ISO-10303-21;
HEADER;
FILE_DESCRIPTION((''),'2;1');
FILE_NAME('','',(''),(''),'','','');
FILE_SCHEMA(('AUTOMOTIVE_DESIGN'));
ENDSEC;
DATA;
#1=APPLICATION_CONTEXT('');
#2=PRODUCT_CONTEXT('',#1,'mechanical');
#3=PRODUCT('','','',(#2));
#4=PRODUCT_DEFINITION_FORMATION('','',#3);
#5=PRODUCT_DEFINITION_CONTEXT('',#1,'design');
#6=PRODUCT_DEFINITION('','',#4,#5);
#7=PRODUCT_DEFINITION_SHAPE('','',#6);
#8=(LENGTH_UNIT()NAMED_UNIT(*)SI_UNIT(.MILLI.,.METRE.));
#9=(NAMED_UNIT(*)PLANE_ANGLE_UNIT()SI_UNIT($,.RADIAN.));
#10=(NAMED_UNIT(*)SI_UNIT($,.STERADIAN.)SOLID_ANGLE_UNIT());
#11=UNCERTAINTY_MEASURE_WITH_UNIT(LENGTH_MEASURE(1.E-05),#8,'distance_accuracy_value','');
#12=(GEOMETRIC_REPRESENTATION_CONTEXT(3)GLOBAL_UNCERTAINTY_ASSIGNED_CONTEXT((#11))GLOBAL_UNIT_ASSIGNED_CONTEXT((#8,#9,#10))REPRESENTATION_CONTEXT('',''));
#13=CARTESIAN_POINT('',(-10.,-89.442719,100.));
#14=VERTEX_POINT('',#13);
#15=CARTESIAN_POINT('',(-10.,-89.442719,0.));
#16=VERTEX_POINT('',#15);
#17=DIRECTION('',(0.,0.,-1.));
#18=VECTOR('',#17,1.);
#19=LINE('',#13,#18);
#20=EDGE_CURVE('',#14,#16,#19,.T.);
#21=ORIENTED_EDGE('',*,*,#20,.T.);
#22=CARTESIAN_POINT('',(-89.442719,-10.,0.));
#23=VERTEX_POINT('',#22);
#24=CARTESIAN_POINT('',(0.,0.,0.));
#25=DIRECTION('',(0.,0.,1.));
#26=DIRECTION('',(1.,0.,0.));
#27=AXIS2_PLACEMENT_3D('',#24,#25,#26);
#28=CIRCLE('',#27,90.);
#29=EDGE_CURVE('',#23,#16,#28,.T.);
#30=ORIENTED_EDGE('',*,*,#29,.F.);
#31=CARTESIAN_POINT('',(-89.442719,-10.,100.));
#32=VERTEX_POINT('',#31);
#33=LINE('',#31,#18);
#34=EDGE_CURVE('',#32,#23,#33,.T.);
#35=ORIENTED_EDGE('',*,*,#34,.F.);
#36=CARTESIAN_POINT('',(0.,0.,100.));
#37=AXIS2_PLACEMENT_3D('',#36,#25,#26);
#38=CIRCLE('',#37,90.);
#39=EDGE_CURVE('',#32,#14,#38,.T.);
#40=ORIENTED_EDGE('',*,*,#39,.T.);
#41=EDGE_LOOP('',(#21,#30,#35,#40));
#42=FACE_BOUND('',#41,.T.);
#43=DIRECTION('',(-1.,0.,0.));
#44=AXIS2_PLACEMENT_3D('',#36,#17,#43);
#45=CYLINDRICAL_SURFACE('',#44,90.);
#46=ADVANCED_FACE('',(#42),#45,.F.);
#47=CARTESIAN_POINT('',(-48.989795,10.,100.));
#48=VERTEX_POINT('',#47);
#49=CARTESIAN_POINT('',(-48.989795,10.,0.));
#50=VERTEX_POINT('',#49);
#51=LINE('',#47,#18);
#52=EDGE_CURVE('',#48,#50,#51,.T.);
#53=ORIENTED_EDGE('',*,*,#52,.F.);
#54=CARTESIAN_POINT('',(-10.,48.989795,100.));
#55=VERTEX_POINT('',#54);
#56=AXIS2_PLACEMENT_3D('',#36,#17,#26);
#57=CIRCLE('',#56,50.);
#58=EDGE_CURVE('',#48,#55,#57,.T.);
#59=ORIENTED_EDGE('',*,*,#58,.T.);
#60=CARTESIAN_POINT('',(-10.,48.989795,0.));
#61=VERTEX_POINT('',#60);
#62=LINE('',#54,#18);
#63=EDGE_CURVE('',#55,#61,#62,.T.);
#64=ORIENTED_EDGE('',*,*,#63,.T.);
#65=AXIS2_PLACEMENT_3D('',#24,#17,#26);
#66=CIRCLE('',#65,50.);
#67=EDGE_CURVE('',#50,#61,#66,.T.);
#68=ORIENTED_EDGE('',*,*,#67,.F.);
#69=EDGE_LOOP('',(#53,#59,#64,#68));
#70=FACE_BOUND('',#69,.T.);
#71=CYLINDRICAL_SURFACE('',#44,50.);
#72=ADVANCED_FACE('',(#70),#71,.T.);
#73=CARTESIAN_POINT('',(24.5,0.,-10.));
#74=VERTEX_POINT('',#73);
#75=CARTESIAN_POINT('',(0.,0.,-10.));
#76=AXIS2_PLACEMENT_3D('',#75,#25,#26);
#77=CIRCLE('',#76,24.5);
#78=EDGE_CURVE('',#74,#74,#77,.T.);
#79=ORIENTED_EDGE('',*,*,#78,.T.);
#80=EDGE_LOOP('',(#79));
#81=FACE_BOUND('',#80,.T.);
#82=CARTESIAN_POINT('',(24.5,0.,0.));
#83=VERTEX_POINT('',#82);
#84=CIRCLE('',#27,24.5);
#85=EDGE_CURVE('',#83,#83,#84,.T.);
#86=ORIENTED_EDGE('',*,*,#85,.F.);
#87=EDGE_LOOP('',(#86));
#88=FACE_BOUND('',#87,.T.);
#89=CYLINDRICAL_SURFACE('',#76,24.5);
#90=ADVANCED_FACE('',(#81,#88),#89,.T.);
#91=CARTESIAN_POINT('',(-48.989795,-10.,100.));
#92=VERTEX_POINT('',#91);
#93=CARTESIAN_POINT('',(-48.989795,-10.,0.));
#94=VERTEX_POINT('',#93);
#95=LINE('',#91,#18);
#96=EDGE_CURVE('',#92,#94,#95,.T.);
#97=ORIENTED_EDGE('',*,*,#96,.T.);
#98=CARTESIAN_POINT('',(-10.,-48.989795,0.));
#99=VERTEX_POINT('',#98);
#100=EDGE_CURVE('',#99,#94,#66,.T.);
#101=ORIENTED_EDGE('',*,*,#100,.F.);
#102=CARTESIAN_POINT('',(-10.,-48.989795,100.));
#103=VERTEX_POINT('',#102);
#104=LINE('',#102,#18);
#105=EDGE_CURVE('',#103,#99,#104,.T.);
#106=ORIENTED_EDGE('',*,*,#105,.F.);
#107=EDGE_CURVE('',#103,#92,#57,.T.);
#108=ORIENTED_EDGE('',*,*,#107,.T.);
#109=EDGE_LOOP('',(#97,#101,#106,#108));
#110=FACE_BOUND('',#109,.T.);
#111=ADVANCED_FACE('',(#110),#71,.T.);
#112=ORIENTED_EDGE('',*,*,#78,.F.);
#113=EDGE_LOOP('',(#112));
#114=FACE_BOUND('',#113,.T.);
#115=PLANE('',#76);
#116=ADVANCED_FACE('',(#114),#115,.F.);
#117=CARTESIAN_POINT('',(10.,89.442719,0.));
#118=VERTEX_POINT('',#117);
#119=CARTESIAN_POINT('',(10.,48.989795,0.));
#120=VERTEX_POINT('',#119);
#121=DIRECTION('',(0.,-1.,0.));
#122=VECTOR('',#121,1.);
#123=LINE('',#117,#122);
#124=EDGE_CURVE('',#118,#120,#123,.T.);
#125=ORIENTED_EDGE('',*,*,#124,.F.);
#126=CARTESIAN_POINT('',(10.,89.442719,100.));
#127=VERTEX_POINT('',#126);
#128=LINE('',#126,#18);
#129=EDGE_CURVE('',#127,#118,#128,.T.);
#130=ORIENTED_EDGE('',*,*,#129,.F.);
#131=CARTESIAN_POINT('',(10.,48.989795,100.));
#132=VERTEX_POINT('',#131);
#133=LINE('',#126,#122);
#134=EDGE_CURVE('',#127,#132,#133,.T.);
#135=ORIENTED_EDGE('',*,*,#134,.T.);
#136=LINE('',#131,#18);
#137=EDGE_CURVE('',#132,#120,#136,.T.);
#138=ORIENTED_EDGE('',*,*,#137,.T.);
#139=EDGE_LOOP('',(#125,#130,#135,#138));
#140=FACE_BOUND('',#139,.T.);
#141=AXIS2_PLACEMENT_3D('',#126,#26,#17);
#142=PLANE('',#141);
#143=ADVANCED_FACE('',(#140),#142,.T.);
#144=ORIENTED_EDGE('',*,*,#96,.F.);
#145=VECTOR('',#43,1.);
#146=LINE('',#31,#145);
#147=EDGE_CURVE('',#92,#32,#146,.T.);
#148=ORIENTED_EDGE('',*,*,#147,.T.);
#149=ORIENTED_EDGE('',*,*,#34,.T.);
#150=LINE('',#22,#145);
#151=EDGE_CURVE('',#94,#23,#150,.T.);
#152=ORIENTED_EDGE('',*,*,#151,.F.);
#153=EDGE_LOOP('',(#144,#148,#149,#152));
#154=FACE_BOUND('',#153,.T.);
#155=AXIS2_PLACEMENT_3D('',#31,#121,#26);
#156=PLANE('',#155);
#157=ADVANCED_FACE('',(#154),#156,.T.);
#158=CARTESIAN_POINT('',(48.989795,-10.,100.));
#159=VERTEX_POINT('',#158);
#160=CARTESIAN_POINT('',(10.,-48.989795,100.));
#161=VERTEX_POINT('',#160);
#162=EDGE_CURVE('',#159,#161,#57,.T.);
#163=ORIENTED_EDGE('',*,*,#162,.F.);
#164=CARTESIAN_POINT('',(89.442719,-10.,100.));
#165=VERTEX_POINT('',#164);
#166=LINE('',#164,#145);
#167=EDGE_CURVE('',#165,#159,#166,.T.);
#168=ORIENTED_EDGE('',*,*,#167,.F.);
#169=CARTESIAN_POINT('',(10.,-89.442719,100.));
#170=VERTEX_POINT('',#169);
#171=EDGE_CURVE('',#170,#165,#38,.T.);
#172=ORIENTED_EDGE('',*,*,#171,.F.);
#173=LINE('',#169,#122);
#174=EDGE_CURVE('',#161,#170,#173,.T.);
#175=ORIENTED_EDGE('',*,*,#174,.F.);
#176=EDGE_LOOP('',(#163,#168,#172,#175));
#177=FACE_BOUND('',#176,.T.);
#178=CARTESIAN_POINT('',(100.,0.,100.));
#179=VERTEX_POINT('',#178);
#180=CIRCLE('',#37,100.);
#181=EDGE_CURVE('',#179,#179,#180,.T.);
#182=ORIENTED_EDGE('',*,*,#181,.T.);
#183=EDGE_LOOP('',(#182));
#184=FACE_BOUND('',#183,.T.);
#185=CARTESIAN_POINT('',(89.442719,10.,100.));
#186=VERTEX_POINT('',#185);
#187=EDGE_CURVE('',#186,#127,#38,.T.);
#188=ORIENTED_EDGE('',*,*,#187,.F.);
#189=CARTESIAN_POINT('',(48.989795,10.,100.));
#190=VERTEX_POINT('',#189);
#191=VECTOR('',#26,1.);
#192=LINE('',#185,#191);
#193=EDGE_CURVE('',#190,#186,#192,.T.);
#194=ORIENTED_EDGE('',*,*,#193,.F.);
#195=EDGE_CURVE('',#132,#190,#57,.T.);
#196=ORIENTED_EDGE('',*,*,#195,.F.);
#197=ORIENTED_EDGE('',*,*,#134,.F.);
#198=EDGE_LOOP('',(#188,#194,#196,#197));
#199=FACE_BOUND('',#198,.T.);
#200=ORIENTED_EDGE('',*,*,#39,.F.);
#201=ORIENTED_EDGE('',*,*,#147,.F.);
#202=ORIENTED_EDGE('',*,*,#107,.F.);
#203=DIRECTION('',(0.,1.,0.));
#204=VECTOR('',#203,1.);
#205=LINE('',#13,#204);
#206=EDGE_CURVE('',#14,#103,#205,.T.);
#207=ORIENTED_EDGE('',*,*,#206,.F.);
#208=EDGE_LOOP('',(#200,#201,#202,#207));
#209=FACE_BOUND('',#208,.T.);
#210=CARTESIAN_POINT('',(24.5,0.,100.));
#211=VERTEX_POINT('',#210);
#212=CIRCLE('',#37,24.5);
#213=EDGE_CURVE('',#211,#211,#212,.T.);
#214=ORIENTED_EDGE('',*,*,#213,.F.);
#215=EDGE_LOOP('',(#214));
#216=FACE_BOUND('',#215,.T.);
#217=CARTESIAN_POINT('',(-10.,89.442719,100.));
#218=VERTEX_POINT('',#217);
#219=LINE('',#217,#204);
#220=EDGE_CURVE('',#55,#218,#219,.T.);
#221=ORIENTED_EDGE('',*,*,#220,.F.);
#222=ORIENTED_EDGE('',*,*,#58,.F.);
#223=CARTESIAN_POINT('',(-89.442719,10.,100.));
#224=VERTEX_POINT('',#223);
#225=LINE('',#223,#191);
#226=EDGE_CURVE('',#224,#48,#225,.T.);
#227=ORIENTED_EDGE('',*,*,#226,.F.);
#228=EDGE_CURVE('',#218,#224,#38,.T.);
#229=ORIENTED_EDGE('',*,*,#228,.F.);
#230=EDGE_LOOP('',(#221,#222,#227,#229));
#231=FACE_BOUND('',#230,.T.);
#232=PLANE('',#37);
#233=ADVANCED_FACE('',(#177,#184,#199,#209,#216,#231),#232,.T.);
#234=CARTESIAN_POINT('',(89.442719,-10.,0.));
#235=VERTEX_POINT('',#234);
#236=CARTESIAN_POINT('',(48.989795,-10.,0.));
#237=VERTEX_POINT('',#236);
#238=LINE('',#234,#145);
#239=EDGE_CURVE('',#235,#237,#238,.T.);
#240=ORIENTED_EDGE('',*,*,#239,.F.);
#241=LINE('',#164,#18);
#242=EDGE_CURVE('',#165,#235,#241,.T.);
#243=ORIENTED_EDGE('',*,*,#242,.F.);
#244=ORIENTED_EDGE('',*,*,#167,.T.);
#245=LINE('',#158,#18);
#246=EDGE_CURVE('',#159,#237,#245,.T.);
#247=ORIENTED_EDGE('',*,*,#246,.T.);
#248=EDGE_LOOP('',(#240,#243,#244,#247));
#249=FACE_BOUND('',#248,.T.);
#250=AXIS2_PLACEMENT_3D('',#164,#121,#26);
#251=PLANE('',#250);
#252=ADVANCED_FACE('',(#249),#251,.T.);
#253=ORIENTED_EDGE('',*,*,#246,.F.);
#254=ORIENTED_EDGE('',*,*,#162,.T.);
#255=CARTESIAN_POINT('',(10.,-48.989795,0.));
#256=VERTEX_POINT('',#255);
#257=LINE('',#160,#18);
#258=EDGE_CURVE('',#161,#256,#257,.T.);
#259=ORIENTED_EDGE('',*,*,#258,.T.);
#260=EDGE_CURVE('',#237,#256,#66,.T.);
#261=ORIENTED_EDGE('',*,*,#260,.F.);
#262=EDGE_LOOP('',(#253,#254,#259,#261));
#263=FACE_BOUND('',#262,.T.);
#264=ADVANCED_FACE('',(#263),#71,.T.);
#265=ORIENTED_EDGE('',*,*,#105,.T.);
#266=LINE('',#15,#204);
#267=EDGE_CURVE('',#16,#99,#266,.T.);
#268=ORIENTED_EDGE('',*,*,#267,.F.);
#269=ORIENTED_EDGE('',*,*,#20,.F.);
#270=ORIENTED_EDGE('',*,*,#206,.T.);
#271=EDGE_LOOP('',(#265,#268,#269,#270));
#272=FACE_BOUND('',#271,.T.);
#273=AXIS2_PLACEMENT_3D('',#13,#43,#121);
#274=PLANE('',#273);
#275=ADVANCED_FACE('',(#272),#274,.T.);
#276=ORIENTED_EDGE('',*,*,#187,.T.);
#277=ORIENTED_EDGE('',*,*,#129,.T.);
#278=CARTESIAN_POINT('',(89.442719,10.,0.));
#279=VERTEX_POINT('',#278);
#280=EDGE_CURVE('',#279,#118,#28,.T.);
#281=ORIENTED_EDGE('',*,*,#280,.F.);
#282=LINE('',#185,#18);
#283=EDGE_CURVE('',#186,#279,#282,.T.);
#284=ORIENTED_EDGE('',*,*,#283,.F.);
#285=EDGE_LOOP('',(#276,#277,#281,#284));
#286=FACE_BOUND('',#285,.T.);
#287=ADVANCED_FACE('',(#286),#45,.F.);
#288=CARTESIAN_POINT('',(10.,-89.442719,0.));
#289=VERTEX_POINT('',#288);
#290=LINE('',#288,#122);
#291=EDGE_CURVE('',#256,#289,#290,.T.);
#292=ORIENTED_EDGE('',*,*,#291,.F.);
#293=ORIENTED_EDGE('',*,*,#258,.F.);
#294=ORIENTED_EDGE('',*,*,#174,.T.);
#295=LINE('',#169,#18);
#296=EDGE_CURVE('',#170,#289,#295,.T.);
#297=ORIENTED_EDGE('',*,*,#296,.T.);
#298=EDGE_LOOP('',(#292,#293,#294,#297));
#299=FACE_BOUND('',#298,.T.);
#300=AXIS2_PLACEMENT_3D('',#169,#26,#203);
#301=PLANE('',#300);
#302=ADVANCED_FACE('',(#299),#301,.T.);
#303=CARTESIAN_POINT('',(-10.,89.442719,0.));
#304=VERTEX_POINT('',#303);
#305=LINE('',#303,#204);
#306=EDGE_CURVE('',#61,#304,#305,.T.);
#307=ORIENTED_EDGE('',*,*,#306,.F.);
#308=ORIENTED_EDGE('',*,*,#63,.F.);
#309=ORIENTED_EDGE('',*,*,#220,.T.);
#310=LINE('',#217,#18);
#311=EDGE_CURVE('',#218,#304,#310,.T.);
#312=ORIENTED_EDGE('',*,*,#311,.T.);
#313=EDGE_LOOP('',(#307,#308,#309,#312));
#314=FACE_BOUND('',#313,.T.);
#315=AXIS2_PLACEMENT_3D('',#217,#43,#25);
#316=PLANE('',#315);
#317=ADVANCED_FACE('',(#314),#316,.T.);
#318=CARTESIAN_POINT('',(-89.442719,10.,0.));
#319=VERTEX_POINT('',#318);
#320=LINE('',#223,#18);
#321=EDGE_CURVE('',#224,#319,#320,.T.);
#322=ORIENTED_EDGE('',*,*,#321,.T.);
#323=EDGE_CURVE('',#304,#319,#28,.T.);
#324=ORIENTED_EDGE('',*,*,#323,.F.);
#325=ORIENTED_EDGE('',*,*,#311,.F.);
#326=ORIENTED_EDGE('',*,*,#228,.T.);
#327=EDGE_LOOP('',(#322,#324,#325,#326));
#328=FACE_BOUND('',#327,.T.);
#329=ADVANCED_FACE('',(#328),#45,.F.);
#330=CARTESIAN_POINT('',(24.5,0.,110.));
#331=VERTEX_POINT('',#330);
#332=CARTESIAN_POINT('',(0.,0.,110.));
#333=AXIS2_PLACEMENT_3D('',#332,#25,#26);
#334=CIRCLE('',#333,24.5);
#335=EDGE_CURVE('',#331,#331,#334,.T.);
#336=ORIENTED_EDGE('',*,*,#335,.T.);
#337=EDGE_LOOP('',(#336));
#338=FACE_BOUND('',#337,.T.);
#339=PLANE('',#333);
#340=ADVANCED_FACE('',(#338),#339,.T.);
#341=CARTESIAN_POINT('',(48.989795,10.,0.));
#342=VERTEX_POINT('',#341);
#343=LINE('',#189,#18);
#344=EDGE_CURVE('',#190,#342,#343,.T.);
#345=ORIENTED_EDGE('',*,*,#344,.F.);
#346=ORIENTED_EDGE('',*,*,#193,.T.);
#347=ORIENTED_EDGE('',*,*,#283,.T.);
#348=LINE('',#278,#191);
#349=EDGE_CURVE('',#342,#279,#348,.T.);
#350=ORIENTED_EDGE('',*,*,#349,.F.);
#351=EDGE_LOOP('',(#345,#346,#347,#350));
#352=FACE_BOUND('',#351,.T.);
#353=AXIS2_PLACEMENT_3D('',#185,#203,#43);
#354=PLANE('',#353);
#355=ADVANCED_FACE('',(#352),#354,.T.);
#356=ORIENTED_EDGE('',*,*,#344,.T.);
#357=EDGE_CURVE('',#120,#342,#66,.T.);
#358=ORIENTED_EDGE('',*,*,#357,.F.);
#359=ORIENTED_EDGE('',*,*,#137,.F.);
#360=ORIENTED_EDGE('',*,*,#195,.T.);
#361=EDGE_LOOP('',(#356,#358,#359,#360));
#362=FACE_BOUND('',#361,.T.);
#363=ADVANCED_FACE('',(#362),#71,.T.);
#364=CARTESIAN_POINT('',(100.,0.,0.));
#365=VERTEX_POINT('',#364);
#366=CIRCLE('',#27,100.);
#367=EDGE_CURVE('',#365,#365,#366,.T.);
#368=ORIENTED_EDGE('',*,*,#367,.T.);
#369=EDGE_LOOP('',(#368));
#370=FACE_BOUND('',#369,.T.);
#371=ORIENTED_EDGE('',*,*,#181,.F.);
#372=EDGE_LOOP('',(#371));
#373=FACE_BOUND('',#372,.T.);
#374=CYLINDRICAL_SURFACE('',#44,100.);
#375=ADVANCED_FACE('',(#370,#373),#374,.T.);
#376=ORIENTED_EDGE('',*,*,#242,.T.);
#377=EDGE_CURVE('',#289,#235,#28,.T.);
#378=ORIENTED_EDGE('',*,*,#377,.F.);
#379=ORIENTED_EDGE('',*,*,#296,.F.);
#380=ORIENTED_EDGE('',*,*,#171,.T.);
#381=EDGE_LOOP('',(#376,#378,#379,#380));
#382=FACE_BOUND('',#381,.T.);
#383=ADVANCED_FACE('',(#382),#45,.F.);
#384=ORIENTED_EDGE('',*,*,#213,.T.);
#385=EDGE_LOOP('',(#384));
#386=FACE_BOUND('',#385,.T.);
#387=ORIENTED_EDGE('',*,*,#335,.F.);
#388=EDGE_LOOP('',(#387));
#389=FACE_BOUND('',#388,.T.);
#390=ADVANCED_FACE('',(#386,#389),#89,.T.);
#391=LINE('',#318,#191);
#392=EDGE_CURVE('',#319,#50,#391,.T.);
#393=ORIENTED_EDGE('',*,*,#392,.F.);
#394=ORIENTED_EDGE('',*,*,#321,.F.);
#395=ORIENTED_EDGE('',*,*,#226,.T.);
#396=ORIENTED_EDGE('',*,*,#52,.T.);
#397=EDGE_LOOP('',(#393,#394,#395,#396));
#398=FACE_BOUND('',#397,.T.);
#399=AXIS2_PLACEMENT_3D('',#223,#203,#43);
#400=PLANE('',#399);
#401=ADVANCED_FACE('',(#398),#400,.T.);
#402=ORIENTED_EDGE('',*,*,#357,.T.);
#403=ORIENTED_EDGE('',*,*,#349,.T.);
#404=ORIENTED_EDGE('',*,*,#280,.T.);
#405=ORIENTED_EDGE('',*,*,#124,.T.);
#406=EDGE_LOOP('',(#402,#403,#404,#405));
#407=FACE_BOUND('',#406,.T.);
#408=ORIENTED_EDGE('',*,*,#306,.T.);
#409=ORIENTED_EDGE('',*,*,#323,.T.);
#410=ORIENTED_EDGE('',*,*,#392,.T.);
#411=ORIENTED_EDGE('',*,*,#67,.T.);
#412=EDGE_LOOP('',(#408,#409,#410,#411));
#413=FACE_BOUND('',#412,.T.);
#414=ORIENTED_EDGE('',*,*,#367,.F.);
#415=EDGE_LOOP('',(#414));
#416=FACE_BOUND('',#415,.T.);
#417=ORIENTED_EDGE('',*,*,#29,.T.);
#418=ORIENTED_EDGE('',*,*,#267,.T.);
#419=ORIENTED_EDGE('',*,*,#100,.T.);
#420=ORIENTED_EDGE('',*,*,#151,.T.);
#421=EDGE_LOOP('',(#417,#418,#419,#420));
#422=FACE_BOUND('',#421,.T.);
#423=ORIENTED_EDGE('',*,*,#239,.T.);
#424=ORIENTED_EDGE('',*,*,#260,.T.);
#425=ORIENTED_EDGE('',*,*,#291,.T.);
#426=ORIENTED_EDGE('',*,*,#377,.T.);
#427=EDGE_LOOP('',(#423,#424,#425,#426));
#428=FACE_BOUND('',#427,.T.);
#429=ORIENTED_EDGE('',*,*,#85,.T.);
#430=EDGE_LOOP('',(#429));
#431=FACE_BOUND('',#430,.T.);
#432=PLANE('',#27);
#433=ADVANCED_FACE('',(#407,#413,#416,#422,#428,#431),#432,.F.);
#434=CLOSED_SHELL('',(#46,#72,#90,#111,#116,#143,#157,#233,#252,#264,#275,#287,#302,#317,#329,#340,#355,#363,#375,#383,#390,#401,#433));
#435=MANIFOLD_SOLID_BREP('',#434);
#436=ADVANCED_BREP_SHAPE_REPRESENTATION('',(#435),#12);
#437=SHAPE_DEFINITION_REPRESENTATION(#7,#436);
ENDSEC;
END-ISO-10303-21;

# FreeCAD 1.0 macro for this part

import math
import FreeCAD as App
import Part
import Sketcher

doc = App.newDocument("Part")
body = doc.addObject("PartDesign::Body", "Body")

sketch1 = body.newObject("Sketcher::SketchObject", "Sketch")
sketch1.AttachmentSupport = (doc.getObject("XY_Plane"), [""])
sketch1.MapMode = "FlatFace"
sketch1.addGeometry(Part.Circle(App.Vector(0, 0, 0), App.Vector(0, 0, 1), 100), False)
sketch1.addGeometry(Part.LineSegment(App.Vector(-10, -49, 0), App.Vector(-10, -89, 0)), False)
sketch1.addGeometry(Part.ArcOfCircle(Part.Circle(App.Vector(0, 0, 0), App.Vector(0, 0, 1), 90), math.radians(-174), math.radians(-96)), False)
sketch1.addGeometry(Part.LineSegment(App.Vector(-89, -10, 0), App.Vector(-49, -10, 0)), False)
sketch1.addGeometry(Part.ArcOfCircle(Part.Circle(App.Vector(0, 0, 0), App.Vector(0, 0, 1), 50), math.radians(-168), math.radians(-102)), False)
sketch1.addGeometry(Part.LineSegment(App.Vector(49, -10, 0), App.Vector(89, -10, 0)), False)
sketch1.addGeometry(Part.ArcOfCircle(Part.Circle(App.Vector(0, 0, 0), App.Vector(0, 0, 1), 90), math.radians(-84), math.radians(-6)), False)
sketch1.addGeometry(Part.LineSegment(App.Vector(10, -89, 0), App.Vector(10, -49, 0)), False)
sketch1.addGeometry(Part.ArcOfCircle(Part.Circle(App.Vector(0, 0, 0), App.Vector(0, 0, 1), 50), math.radians(-78), math.radians(-12)), False)
sketch1.addGeometry(Part.ArcOfCircle(Part.Circle(App.Vector(0, 0, 0), App.Vector(0, 0, 1), 90), math.radians(96), math.radians(174)), False)
sketch1.addGeometry(Part.LineSegment(App.Vector(-10, 89, 0), App.Vector(-10, 49, 0)), False)
sketch1.addGeometry(Part.ArcOfCircle(Part.Circle(App.Vector(0, 0, 0), App.Vector(0, 0, 1), 50), math.radians(102), math.radians(168)), False)
sketch1.addGeometry(Part.LineSegment(App.Vector(-49, 10, 0), App.Vector(-89, 10, 0)), False)
sketch1.addGeometry(Part.LineSegment(App.Vector(10, 49, 0), App.Vector(10, 89, 0)), False)
sketch1.addGeometry(Part.ArcOfCircle(Part.Circle(App.Vector(0, 0, 0), App.Vector(0, 0, 1), 90), math.radians(6), math.radians(84)), False)
sketch1.addGeometry(Part.LineSegment(App.Vector(89, 10, 0), App.Vector(49, 10, 0)), False)
sketch1.addGeometry(Part.ArcOfCircle(Part.Circle(App.Vector(0, 0, 0), App.Vector(0, 0, 1), 50), math.radians(12), math.radians(78)), False)
sketch1.addConstraint(Sketcher.Constraint("Coincident", 1, 2, 2, 2))
sketch1.addConstraint(Sketcher.Constraint("Coincident", 2, 1, 3, 1))
sketch1.addConstraint(Sketcher.Constraint("Coincident", 3, 2, 4, 1))
sketch1.addConstraint(Sketcher.Constraint("Coincident", 4, 2, 1, 1))
sketch1.addConstraint(Sketcher.Constraint("Coincident", 5, 2, 6, 2))
sketch1.addConstraint(Sketcher.Constraint("Coincident", 6, 1, 7, 1))
sketch1.addConstraint(Sketcher.Constraint("Coincident", 7, 2, 8, 1))
sketch1.addConstraint(Sketcher.Constraint("Coincident", 8, 2, 5, 1))
sketch1.addConstraint(Sketcher.Constraint("Coincident", 9, 1, 10, 1))
sketch1.addConstraint(Sketcher.Constraint("Coincident", 10, 2, 11, 1))
sketch1.addConstraint(Sketcher.Constraint("Coincident", 11, 2, 12, 1))
sketch1.addConstraint(Sketcher.Constraint("Coincident", 12, 2, 9, 2))
sketch1.addConstraint(Sketcher.Constraint("Coincident", 13, 2, 14, 2))
sketch1.addConstraint(Sketcher.Constraint("Coincident", 14, 1, 15, 1))
sketch1.addConstraint(Sketcher.Constraint("Coincident", 15, 2, 16, 1))
sketch1.addConstraint(Sketcher.Constraint("Coincident", 16, 2, 13, 1))
sketch1.addConstraint(Sketcher.Constraint("Vertical", 1))
sketch1.addConstraint(Sketcher.Constraint("Horizontal", 3))
sketch1.addConstraint(Sketcher.Constraint("Horizontal", 5))
sketch1.addConstraint(Sketcher.Constraint("Vertical", 7))
sketch1.addConstraint(Sketcher.Constraint("Vertical", 10))
sketch1.addConstraint(Sketcher.Constraint("Horizontal", 12))
sketch1.addConstraint(Sketcher.Constraint("Vertical", 13))
sketch1.addConstraint(Sketcher.Constraint("Horizontal", 15))
sketch1.addConstraint(Sketcher.Constraint("Coincident", 0, 3, -1, 1))
sketch1.addConstraint(Sketcher.Constraint("Coincident", 2, 3, -1, 1))
sketch1.addConstraint(Sketcher.Constraint("Coincident", 4, 3, -1, 1))
sketch1.addConstraint(Sketcher.Constraint("Coincident", 6, 3, -1, 1))
sketch1.addConstraint(Sketcher.Constraint("Coincident", 8, 3, -1, 1))
sketch1.addConstraint(Sketcher.Constraint("Coincident", 9, 3, -1, 1))
sketch1.addConstraint(Sketcher.Constraint("Coincident", 11, 3, -1, 1))
sketch1.addConstraint(Sketcher.Constraint("Coincident", 14, 3, -1, 1))
sketch1.addConstraint(Sketcher.Constraint("Coincident", 16, 3, -1, 1))
sketch1.addConstraint(Sketcher.Constraint("Equal", 2, 6))
sketch1.addConstraint(Sketcher.Constraint("Equal", 4, 8))
sketch1.addConstraint(Sketcher.Constraint("Equal", 6, 9))
sketch1.addConstraint(Sketcher.Constraint("Equal", 8, 11))
sketch1.addConstraint(Sketcher.Constraint("Equal", 9, 14))
sketch1.addConstraint(Sketcher.Constraint("Equal", 11, 16))
sketch1.addConstraint(Sketcher.Constraint("Horizontal", 3, 2, 5, 2))
sketch1.addConstraint(Sketcher.Constraint("Horizontal", 1, 2, 6, 1))
sketch1.addConstraint(Sketcher.Constraint("Horizontal", 9, 1, 13, 2))
sketch1.addConstraint(Sketcher.Constraint("Horizontal", 12, 2, 14, 1))
sketch1.addConstraint(Sketcher.Constraint("Vertical", 4, 2, 9, 1))
sketch1.addConstraint(Sketcher.Constraint("Vertical", 3, 2, 11, 2))
sketch1.addConstraint(Sketcher.Constraint("Equal", 15, 1))
sketch1.addConstraint(Sketcher.Constraint("Diameter", 0, 200.0))
sketch1.addConstraint(Sketcher.Constraint("Radius", 2, 90.0))
sketch1.addConstraint(Sketcher.Constraint("Radius", 4, 50.0))
sketch1.addConstraint(Sketcher.Constraint("DistanceX", 1, 2, -1, 1, 10.0))
pad1 = body.newObject("PartDesign::Pad", "Pad")
pad1.Profile = sketch1
pad1.Length = 100

sketch2 = body.newObject("Sketcher::SketchObject", "Sketch001")
sketch2.AttachmentSupport = (doc.getObject("XY_Plane"), [""])
sketch2.MapMode = "FlatFace"
sketch2.AttachmentOffset = App.Placement(App.Vector(0, 0, 100), App.Rotation())
sketch2.addGeometry(Part.Circle(App.Vector(0, 0, 0), App.Vector(0, 0, 1), 24), False)
sketch2.addConstraint(Sketcher.Constraint("Coincident", 0, 3, -1, 1))
sketch2.addConstraint(Sketcher.Constraint("Diameter", 0, 49.0))
pad2 = body.newObject("PartDesign::Pad", "Pad001")
pad2.Profile = sketch2
pad2.Type = "TwoLengths"
pad2.Length = 10
pad2.Length2 = 110

doc.recompute()
